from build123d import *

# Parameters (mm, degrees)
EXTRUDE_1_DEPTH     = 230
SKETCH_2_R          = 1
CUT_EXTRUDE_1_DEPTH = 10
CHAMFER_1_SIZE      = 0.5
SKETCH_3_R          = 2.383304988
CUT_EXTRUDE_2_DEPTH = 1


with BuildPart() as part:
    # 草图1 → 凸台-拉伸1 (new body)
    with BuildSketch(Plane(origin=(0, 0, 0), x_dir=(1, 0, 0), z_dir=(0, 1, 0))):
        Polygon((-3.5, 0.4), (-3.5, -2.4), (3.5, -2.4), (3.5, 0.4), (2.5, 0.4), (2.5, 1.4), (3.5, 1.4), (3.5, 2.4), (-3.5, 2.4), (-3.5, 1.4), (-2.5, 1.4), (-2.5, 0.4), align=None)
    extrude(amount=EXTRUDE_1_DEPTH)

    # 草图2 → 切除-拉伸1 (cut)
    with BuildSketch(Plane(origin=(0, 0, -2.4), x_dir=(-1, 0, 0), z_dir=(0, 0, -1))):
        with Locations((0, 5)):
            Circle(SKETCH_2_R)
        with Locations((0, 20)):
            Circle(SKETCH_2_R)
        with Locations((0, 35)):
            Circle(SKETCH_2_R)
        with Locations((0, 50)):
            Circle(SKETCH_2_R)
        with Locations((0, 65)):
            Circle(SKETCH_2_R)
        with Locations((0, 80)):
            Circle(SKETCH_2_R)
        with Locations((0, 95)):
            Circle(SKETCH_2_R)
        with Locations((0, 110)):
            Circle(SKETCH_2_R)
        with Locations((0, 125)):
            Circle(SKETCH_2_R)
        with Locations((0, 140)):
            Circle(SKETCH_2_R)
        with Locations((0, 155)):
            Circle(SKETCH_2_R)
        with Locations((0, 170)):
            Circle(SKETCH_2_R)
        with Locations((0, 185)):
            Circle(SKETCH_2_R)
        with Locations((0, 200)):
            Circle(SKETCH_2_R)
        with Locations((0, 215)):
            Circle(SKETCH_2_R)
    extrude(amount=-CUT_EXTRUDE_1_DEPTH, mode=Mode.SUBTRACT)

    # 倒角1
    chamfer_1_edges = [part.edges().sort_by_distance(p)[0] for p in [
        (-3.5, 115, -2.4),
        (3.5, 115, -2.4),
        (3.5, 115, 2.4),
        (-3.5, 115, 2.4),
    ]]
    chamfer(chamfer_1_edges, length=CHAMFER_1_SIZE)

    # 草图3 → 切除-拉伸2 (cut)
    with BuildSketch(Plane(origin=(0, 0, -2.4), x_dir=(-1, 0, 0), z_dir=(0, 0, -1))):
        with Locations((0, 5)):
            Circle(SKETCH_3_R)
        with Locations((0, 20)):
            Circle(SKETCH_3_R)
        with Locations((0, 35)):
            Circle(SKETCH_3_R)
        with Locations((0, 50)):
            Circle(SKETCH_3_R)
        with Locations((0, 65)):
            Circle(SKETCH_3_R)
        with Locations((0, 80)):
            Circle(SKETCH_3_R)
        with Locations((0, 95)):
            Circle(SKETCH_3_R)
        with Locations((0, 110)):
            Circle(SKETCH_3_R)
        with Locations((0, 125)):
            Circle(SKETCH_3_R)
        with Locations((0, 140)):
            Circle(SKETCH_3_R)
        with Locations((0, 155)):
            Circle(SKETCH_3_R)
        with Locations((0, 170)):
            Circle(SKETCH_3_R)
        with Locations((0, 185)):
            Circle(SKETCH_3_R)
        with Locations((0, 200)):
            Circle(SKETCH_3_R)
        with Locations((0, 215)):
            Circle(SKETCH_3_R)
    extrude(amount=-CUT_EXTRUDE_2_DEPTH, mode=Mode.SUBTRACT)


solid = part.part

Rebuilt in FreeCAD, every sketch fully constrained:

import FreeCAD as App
import Part
import Sketcher
from FreeCAD import Vector
Q = App.Units.Quantity


def edges_at(feature, points):
    """Names of the edges that pass closest to the given points."""
    edges = feature.Shape.Edges
    near = lambda p: min(range(len(edges)), key=lambda i: edges[i].distToShape(Part.Vertex(*p))[0])
    return sorted({f"Edge{near(p) + 1}" for p in points})

doc = App.newDocument("Part")
params = doc.addObject("Spreadsheet::Sheet", "Params")
for row, (alias, value) in enumerate([
    ("sketch1_width", "7 mm"),
    ("sketch1_width2", "1 mm"),
    ("sketch1_height", "2.8 mm"),
    ("pad1_length", "230 mm"),
    ("sketch2_diameter", "2 mm"),
    ("pocket1_length", "10 mm"),
    ("chamfer_size", "0.5 mm"),
    ("pocket2_length", "1 mm"),
], start=1):
    params.set(f"A{row}", alias)
    params.set(f"B{row}", "=" + value)
    params.setAlias(f"B{row}", alias)

body = doc.addObject("PartDesign::Body", "Body")

# Sketch on XZ plane
sketch1 = doc.addObject("Sketcher::SketchObject", "Sketch")
body.addObject(sketch1)
sketch1.AttachmentSupport = (doc.XZ_Plane, [""])
sketch1.MapMode = "FlatFace"
sketch1.addGeometry([
    Part.LineSegment(Vector(-3.5, -0.4, 0), Vector(-3.5, 2.4, 0)),  # 0
    Part.LineSegment(Vector(-3.5, 2.4, 0), Vector(3.5, 2.4, 0)),  # 1
    Part.LineSegment(Vector(3.5, 2.4, 0), Vector(3.5, -0.4, 0)),  # 2
    Part.LineSegment(Vector(3.5, -0.4, 0), Vector(2.5, -0.4, 0)),  # 3
    Part.LineSegment(Vector(2.5, -0.4, 0), Vector(2.5, -1.4, 0)),  # 4
    Part.LineSegment(Vector(2.5, -1.4, 0), Vector(3.5, -1.4, 0)),  # 5
    Part.LineSegment(Vector(3.5, -1.4, 0), Vector(3.5, -2.4, 0)),  # 6
    Part.LineSegment(Vector(3.5, -2.4, 0), Vector(-3.5, -2.4, 0)),  # 7
    Part.LineSegment(Vector(-3.5, -2.4, 0), Vector(-3.5, -1.4, 0)),  # 8
    Part.LineSegment(Vector(-3.5, -1.4, 0), Vector(-2.5, -1.4, 0)),  # 9
    Part.LineSegment(Vector(-2.5, -1.4, 0), Vector(-2.5, -0.4, 0)),  # 10
    Part.LineSegment(Vector(-2.5, -0.4, 0), Vector(-3.5, -0.4, 0)),  # 11
], False)
sketch1.addConstraint([
    Sketcher.Constraint("Coincident", 0, 2, 1, 1),
    Sketcher.Constraint("Coincident", 1, 2, 2, 1),
    Sketcher.Constraint("Coincident", 2, 2, 3, 1),
    Sketcher.Constraint("Coincident", 3, 2, 4, 1),
    Sketcher.Constraint("Coincident", 4, 2, 5, 1),
    Sketcher.Constraint("Coincident", 5, 2, 6, 1),
    Sketcher.Constraint("Coincident", 6, 2, 7, 1),
    Sketcher.Constraint("Coincident", 7, 2, 8, 1),
    Sketcher.Constraint("Coincident", 8, 2, 9, 1),
    Sketcher.Constraint("Coincident", 9, 2, 10, 1),
    Sketcher.Constraint("Coincident", 10, 2, 11, 1),
    Sketcher.Constraint("Coincident", 11, 2, 0, 1),
    Sketcher.Constraint("Vertical", 0),
    Sketcher.Constraint("Horizontal", 1),
    Sketcher.Constraint("Vertical", 2),
    Sketcher.Constraint("Horizontal", 3),
    Sketcher.Constraint("Vertical", 4),
    Sketcher.Constraint("Horizontal", 5),
    Sketcher.Constraint("Vertical", 6),
    Sketcher.Constraint("Horizontal", 7),
    Sketcher.Constraint("Vertical", 8),
    Sketcher.Constraint("Horizontal", 9),
    Sketcher.Constraint("Vertical", 10),
    Sketcher.Constraint("Horizontal", 11),
    Sketcher.Constraint("Symmetric", 0, 2, 6, 2, -1, 1),
    Sketcher.Constraint("Symmetric", 5, 2, 8, 2, -2),
    Sketcher.Constraint("Symmetric", 3, 2, 10, 2, -2),
    Sketcher.Constraint("Vertical", 2, 2, 5, 2),
    Sketcher.Constraint("Equal", 11, 4),
    Sketcher.Constraint("Equal", 4, 6),
    Sketcher.Constraint("DistanceX", 1, 1, 1, 2, Q("7 mm")),
    Sketcher.Constraint("DistanceX", 3, 2, 3, 1, Q("1 mm")),
    Sketcher.Constraint("DistanceY", 0, 1, 0, 2, Q("2.8 mm")),
])
sketch1.setExpression("Constraints[30]", "Params.sketch1_width")
sketch1.setExpression("Constraints[31]", "Params.sketch1_width2")
sketch1.setExpression("Constraints[32]", "Params.sketch1_height")
pad1 = doc.addObject("PartDesign::Pad", "Pad")
body.addObject(pad1)
pad1.Profile = sketch1
pad1.setExpression("Length", "Params.pad1_length")
pad1.Reversed = True

# Sketch on XY plane
sketch2 = doc.addObject("Sketcher::SketchObject", "Sketch001")
body.addObject(sketch2)
sketch2.AttachmentSupport = (doc.XY_Plane, [""])
sketch2.MapMode = "FlatFace"
sketch2.AttachmentOffset = App.Placement(Vector(0, 0, -2.4), App.Rotation())
sketch2.addGeometry([
    Part.Circle(Vector(0, 5, 0), Vector(0, 0, 1), 1),  # 0
    Part.Circle(Vector(0, 20, 0), Vector(0, 0, 1), 1),  # 1
    Part.Circle(Vector(0, 35, 0), Vector(0, 0, 1), 1),  # 2
    Part.Circle(Vector(0, 50, 0), Vector(0, 0, 1), 1),  # 3
    Part.Circle(Vector(0, 65, 0), Vector(0, 0, 1), 1),  # 4
    Part.Circle(Vector(0, 80, 0), Vector(0, 0, 1), 1),  # 5
    Part.Circle(Vector(0, 95, 0), Vector(0, 0, 1), 1),  # 6
    Part.Circle(Vector(0, 110, 0), Vector(0, 0, 1), 1),  # 7
    Part.Circle(Vector(0, 125, 0), Vector(0, 0, 1), 1),  # 8
    Part.Circle(Vector(0, 140, 0), Vector(0, 0, 1), 1),  # 9
    Part.Circle(Vector(0, 155, 0), Vector(0, 0, 1), 1),  # 10
    Part.Circle(Vector(0, 170, 0), Vector(0, 0, 1), 1),  # 11
    Part.Circle(Vector(0, 185, 0), Vector(0, 0, 1), 1),  # 12
    Part.Circle(Vector(0, 200, 0), Vector(0, 0, 1), 1),  # 13
    Part.Circle(Vector(0, 215, 0), Vector(0, 0, 1), 1),  # 14
], False)
sketch2.addConstraint([
    Sketcher.Constraint("Equal", 0, 1),
    Sketcher.Constraint("Equal", 1, 2),
    Sketcher.Constraint("Equal", 2, 3),
    Sketcher.Constraint("Equal", 3, 4),
    Sketcher.Constraint("Equal", 4, 5),
    Sketcher.Constraint("Equal", 5, 6),
    Sketcher.Constraint("Equal", 6, 7),
    Sketcher.Constraint("Equal", 7, 8),
    Sketcher.Constraint("Equal", 8, 9),
    Sketcher.Constraint("Equal", 9, 10),
    Sketcher.Constraint("Equal", 10, 11),
    Sketcher.Constraint("Equal", 11, 12),
    Sketcher.Constraint("Equal", 12, 13),
    Sketcher.Constraint("Equal", 13, 14),
    Sketcher.Constraint("PointOnObject", 0, 3, -2),
    Sketcher.Constraint("PointOnObject", 1, 3, -2),
    Sketcher.Constraint("PointOnObject", 2, 3, -2),
    Sketcher.Constraint("PointOnObject", 3, 3, -2),
    Sketcher.Constraint("PointOnObject", 4, 3, -2),
    Sketcher.Constraint("PointOnObject", 5, 3, -2),
    Sketcher.Constraint("PointOnObject", 6, 3, -2),
    Sketcher.Constraint("PointOnObject", 7, 3, -2),
    Sketcher.Constraint("PointOnObject", 8, 3, -2),
    Sketcher.Constraint("PointOnObject", 9, 3, -2),
    Sketcher.Constraint("PointOnObject", 10, 3, -2),
    Sketcher.Constraint("PointOnObject", 11, 3, -2),
    Sketcher.Constraint("PointOnObject", 12, 3, -2),
    Sketcher.Constraint("PointOnObject", 13, 3, -2),
    Sketcher.Constraint("PointOnObject", 14, 3, -2),
    Sketcher.Constraint("Diameter", 0, Q("2 mm")),
    Sketcher.Constraint("DistanceY", -1, 1, 0, 3, Q("5 mm")),
    Sketcher.Constraint("DistanceY", -1, 1, 1, 3, Q("20 mm")),
    Sketcher.Constraint("DistanceY", -1, 1, 2, 3, Q("35 mm")),
    Sketcher.Constraint("DistanceY", -1, 1, 3, 3, Q("50 mm")),
    Sketcher.Constraint("DistanceY", -1, 1, 4, 3, Q("65 mm")),
    Sketcher.Constraint("DistanceY", -1, 1, 5, 3, Q("80 mm")),
    Sketcher.Constraint("DistanceY", -1, 1, 6, 3, Q("95 mm")),
    Sketcher.Constraint("DistanceY", -1, 1, 7, 3, Q("110 mm")),
    Sketcher.Constraint("DistanceY", -1, 1, 8, 3, Q("125 mm")),
    Sketcher.Constraint("DistanceY", -1, 1, 9, 3, Q("140 mm")),
    Sketcher.Constraint("DistanceY", -1, 1, 10, 3, Q("155 mm")),
    Sketcher.Constraint("DistanceY", -1, 1, 11, 3, Q("170 mm")),
    Sketcher.Constraint("DistanceY", -1, 1, 12, 3, Q("185 mm")),
    Sketcher.Constraint("DistanceY", -1, 1, 13, 3, Q("200 mm")),
    Sketcher.Constraint("DistanceY", -1, 1, 14, 3, Q("215 mm")),
])
sketch2.setExpression("Constraints[29]", "Params.sketch2_diameter")
pocket1 = doc.addObject("PartDesign::Pocket", "Pocket")
body.addObject(pocket1)
pocket1.Profile = sketch2
pocket1.setExpression("Length", "Params.pocket1_length")
pocket1.Reversed = True
doc.recompute()

chamfer = doc.addObject("PartDesign::Chamfer", "Chamfer")
body.addObject(chamfer)
chamfer.Base = (pocket1, edges_at(pocket1, [
    (-3.5, 115, -2.4),
    (3.5, 115, -2.4),
    (3.5, 115, 2.4),
    (-3.5, 115, 2.4),
]))
chamfer.setExpression("Size", "Params.chamfer_size")

# Sketch on XY plane
sketch3 = doc.addObject("Sketcher::SketchObject", "Sketch002")
body.addObject(sketch3)
sketch3.AttachmentSupport = (doc.XY_Plane, [""])
sketch3.MapMode = "FlatFace"
sketch3.AttachmentOffset = App.Placement(Vector(0, 0, -2.4), App.Rotation())
sketch3.addGeometry([
    Part.Circle(Vector(0, 5, 0), Vector(0, 0, 1), 2.4),  # 0
    Part.Circle(Vector(0, 20, 0), Vector(0, 0, 1), 2.4),  # 1
    Part.Circle(Vector(0, 35, 0), Vector(0, 0, 1), 2.4),  # 2
    Part.Circle(Vector(0, 50, 0), Vector(0, 0, 1), 2.4),  # 3
    Part.Circle(Vector(0, 65, 0), Vector(0, 0, 1), 2.4),  # 4
    Part.Circle(Vector(0, 80, 0), Vector(0, 0, 1), 2.4),  # 5
    Part.Circle(Vector(0, 95, 0), Vector(0, 0, 1), 2.4),  # 6
    Part.Circle(Vector(0, 110, 0), Vector(0, 0, 1), 2.4),  # 7
    Part.Circle(Vector(0, 125, 0), Vector(0, 0, 1), 2.4),  # 8
    Part.Circle(Vector(0, 140, 0), Vector(0, 0, 1), 2.4),  # 9
    Part.Circle(Vector(0, 155, 0), Vector(0, 0, 1), 2.4),  # 10
    Part.Circle(Vector(0, 170, 0), Vector(0, 0, 1), 2.4),  # 11
    Part.Circle(Vector(0, 185, 0), Vector(0, 0, 1), 2.4),  # 12
    Part.Circle(Vector(0, 200, 0), Vector(0, 0, 1), 2.4),  # 13
    Part.Circle(Vector(0, 215, 0), Vector(0, 0, 1), 2.4),  # 14
], False)
sketch3.addConstraint([
    Sketcher.Constraint("Equal", 0, 1),
    Sketcher.Constraint("Equal", 1, 2),
    Sketcher.Constraint("Equal", 2, 3),
    Sketcher.Constraint("Equal", 3, 4),
    Sketcher.Constraint("Equal", 4, 5),
    Sketcher.Constraint("Equal", 5, 6),
    Sketcher.Constraint("Equal", 6, 7),
    Sketcher.Constraint("Equal", 7, 8),
    Sketcher.Constraint("Equal", 8, 9),
    Sketcher.Constraint("Equal", 9, 10),
    Sketcher.Constraint("Equal", 10, 11),
    Sketcher.Constraint("Equal", 11, 12),
    Sketcher.Constraint("Equal", 12, 13),
    Sketcher.Constraint("Equal", 13, 14),
    Sketcher.Constraint("PointOnObject", 0, 3, -2),
    Sketcher.Constraint("PointOnObject", 1, 3, -2),
    Sketcher.Constraint("PointOnObject", 2, 3, -2),
    Sketcher.Constraint("PointOnObject", 3, 3, -2),
    Sketcher.Constraint("PointOnObject", 4, 3, -2),
    Sketcher.Constraint("PointOnObject", 5, 3, -2),
    Sketcher.Constraint("PointOnObject", 6, 3, -2),
    Sketcher.Constraint("PointOnObject", 7, 3, -2),
    Sketcher.Constraint("PointOnObject", 8, 3, -2),
    Sketcher.Constraint("PointOnObject", 9, 3, -2),
    Sketcher.Constraint("PointOnObject", 10, 3, -2),
    Sketcher.Constraint("PointOnObject", 11, 3, -2),
    Sketcher.Constraint("PointOnObject", 12, 3, -2),
    Sketcher.Constraint("PointOnObject", 13, 3, -2),
    Sketcher.Constraint("PointOnObject", 14, 3, -2),
    Sketcher.Constraint("DistanceY", -1, 1, 0, 3, Q("5 mm")),
    Sketcher.Constraint("DistanceY", -1, 1, 1, 3, Q("20 mm")),
    Sketcher.Constraint("DistanceY", -1, 1, 2, 3, Q("35 mm")),
    Sketcher.Constraint("DistanceY", -1, 1, 3, 3, Q("50 mm")),
    Sketcher.Constraint("DistanceY", -1, 1, 4, 3, Q("65 mm")),
    Sketcher.Constraint("DistanceY", -1, 1, 5, 3, Q("80 mm")),
    Sketcher.Constraint("DistanceY", -1, 1, 6, 3, Q("95 mm")),
    Sketcher.Constraint("DistanceY", -1, 1, 7, 3, Q("110 mm")),
    Sketcher.Constraint("DistanceY", -1, 1, 8, 3, Q("125 mm")),
    Sketcher.Constraint("DistanceY", -1, 1, 9, 3, Q("140 mm")),
    Sketcher.Constraint("DistanceY", -1, 1, 10, 3, Q("155 mm")),
    Sketcher.Constraint("DistanceY", -1, 1, 11, 3, Q("170 mm")),
    Sketcher.Constraint("DistanceY", -1, 1, 12, 3, Q("185 mm")),
    Sketcher.Constraint("DistanceY", -1, 1, 13, 3, Q("200 mm")),
    Sketcher.Constraint("DistanceY", -1, 1, 14, 3, Q("215 mm")),
    Sketcher.Constraint("Diameter", 0, Q("4.76661 mm")),
])
pocket2 = doc.addObject("PartDesign::Pocket", "Pocket001")
body.addObject(pocket2)
pocket2.Profile = sketch3
pocket2.setExpression("Length", "Params.pocket2_length")
pocket2.Reversed = True

doc.recompute()
